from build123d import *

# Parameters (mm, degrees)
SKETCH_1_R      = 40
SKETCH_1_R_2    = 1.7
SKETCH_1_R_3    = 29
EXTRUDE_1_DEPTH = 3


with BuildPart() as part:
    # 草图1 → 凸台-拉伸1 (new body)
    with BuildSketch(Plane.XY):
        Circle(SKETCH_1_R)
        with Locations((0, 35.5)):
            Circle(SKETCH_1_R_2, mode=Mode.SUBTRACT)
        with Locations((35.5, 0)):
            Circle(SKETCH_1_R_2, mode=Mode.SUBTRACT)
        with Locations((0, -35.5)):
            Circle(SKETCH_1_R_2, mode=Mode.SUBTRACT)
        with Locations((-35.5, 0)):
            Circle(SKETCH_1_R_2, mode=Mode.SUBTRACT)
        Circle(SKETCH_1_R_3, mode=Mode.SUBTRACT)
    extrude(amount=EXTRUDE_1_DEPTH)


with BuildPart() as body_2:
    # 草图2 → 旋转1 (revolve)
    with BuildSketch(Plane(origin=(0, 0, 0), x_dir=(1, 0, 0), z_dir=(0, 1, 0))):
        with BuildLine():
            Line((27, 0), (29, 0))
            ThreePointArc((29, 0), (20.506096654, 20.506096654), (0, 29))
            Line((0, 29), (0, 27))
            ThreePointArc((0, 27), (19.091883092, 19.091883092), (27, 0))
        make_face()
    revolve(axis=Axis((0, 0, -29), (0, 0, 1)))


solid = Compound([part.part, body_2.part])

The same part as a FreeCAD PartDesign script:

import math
import FreeCAD as App
import Part
import Sketcher

V = App.Vector
Q = App.Units.Quantity

doc = App.newDocument("Part")
params = doc.addObject("Spreadsheet::Sheet", "Params")
for row, (alias, value) in enumerate([
    ("sketch1_diameter", "80 mm"),
    ("sketch1_diameter2", "58 mm"),
    ("sketch1_diameter3", "3.4 mm"),
    ("pad1_length", "3 mm"),
    ("sketch2_radius", "29 mm"),
    ("sketch2_radius2", "27 mm"),
    ("revolution_angle", "360 deg"),
], start=1):
    params.set(f"A{row}", alias)
    params.set(f"B{row}", "=" + value)
    params.setAlias(f"B{row}", alias)

body = doc.addObject("PartDesign::Body", "Body")

# Sketch on XY plane
sketch1 = body.newObject("Sketcher::SketchObject", "Sketch")
sketch1.AttachmentSupport = (doc.getObject("XY_Plane"), [""])
sketch1.MapMode = "FlatFace"
sketch1.addGeometry([
    Part.Circle(V(0, 0, 0), V(0, 0, 1), 40),  # 0
    Part.Circle(V(0, -35.5, 0), V(0, 0, 1), 1.7),  # 1
    Part.Circle(V(-35.5, 0, 0), V(0, 0, 1), 1.7),  # 2
    Part.Circle(V(0, 0, 0), V(0, 0, 1), 29),  # 3
    Part.Circle(V(35.5, 0, 0), V(0, 0, 1), 1.7),  # 4
    Part.Circle(V(0, 35.5, 0), V(0, 0, 1), 1.7),  # 5
], False)
sketch1.addConstraint([
    Sketcher.Constraint("Coincident", 0, 3, -1, 1),
    Sketcher.Constraint("Coincident", 3, 3, -1, 1),
    Sketcher.Constraint("Equal", 1, 2),
    Sketcher.Constraint("Equal", 2, 4),
    Sketcher.Constraint("Equal", 4, 5),
    Sketcher.Constraint("Symmetric", 2, 3, 4, 3, -1, 1),
    Sketcher.Constraint("Symmetric", 1, 3, 5, 3, -1, 1),
    Sketcher.Constraint("PointOnObject", 1, 3, -2),
    Sketcher.Constraint("PointOnObject", 2, 3, -1),
    Sketcher.Constraint("Diameter", 0, Q("80 mm")),
    Sketcher.Constraint("Diameter", 3, Q("58 mm")),
    Sketcher.Constraint("Diameter", 1, Q("3.4 mm")),
    Sketcher.Constraint("DistanceX", 2, 3, 4, 3, Q("71 mm")),
    Sketcher.Constraint("DistanceY", 1, 3, 5, 3, Q("71 mm")),
])
sketch1.setExpression("Constraints[9]", "Params.sketch1_diameter")
sketch1.setExpression("Constraints[10]", "Params.sketch1_diameter2")
sketch1.setExpression("Constraints[11]", "Params.sketch1_diameter3")
pad1 = body.newObject("PartDesign::Pad", "Pad")
pad1.Profile = sketch1
pad1.setExpression("Length", "Params.pad1_length")
body2 = doc.addObject("PartDesign::Body", "Body001")

# Sketch on XZ plane
sketch2 = body2.newObject("Sketcher::SketchObject", "Sketch001")
sketch2.AttachmentSupport = (doc.getObject("XZ_Plane001"), [""])
sketch2.MapMode = "FlatFace"
sketch2.addGeometry([
    Part.LineSegment(V(27, 0, 0), V(29, 0, 0)),
    Part.ArcOfCircle(Part.Circle(V(0, 0, 0), V(0, 0, 1), 29), math.radians(-90), math.radians(0)),
    Part.LineSegment(V(0, -29, 0), V(0, -27, 0)),
    Part.ArcOfCircle(Part.Circle(V(0, 0, 0), V(0, 0, 1), 27), math.radians(-90), math.radians(0)),
], False)
sketch2.addConstraint([
    Sketcher.Constraint("Coincident", 0, 2, 1, 2),
    Sketcher.Constraint("Coincident", 1, 1, 2, 1),
    Sketcher.Constraint("Coincident", 2, 2, 3, 1),
    Sketcher.Constraint("Coincident", 3, 2, 0, 1),
    Sketcher.Constraint("Horizontal", 0),
    Sketcher.Constraint("Vertical", 2),
    Sketcher.Constraint("Coincident", 1, 3, -1, 1),
    Sketcher.Constraint("Coincident", 3, 3, -1, 1),
    Sketcher.Constraint("PointOnObject", 0, 2, -1),
    Sketcher.Constraint("PointOnObject", 1, 1, -2),
    Sketcher.Constraint("Radius", 1, Q("29 mm")),
    Sketcher.Constraint("Radius", 3, Q("27 mm")),
])
sketch2.setExpression("Constraints[10]", "Params.sketch2_radius")
sketch2.setExpression("Constraints[11]", "Params.sketch2_radius2")
revolution = body2.newObject("PartDesign::Revolution", "Revolution")
revolution.Profile = sketch2
revolution.ReferenceAxis = (sketch2, ["V_Axis"])
revolution.setExpression("Angle", "Params.revolution_angle")

doc.recompute()
